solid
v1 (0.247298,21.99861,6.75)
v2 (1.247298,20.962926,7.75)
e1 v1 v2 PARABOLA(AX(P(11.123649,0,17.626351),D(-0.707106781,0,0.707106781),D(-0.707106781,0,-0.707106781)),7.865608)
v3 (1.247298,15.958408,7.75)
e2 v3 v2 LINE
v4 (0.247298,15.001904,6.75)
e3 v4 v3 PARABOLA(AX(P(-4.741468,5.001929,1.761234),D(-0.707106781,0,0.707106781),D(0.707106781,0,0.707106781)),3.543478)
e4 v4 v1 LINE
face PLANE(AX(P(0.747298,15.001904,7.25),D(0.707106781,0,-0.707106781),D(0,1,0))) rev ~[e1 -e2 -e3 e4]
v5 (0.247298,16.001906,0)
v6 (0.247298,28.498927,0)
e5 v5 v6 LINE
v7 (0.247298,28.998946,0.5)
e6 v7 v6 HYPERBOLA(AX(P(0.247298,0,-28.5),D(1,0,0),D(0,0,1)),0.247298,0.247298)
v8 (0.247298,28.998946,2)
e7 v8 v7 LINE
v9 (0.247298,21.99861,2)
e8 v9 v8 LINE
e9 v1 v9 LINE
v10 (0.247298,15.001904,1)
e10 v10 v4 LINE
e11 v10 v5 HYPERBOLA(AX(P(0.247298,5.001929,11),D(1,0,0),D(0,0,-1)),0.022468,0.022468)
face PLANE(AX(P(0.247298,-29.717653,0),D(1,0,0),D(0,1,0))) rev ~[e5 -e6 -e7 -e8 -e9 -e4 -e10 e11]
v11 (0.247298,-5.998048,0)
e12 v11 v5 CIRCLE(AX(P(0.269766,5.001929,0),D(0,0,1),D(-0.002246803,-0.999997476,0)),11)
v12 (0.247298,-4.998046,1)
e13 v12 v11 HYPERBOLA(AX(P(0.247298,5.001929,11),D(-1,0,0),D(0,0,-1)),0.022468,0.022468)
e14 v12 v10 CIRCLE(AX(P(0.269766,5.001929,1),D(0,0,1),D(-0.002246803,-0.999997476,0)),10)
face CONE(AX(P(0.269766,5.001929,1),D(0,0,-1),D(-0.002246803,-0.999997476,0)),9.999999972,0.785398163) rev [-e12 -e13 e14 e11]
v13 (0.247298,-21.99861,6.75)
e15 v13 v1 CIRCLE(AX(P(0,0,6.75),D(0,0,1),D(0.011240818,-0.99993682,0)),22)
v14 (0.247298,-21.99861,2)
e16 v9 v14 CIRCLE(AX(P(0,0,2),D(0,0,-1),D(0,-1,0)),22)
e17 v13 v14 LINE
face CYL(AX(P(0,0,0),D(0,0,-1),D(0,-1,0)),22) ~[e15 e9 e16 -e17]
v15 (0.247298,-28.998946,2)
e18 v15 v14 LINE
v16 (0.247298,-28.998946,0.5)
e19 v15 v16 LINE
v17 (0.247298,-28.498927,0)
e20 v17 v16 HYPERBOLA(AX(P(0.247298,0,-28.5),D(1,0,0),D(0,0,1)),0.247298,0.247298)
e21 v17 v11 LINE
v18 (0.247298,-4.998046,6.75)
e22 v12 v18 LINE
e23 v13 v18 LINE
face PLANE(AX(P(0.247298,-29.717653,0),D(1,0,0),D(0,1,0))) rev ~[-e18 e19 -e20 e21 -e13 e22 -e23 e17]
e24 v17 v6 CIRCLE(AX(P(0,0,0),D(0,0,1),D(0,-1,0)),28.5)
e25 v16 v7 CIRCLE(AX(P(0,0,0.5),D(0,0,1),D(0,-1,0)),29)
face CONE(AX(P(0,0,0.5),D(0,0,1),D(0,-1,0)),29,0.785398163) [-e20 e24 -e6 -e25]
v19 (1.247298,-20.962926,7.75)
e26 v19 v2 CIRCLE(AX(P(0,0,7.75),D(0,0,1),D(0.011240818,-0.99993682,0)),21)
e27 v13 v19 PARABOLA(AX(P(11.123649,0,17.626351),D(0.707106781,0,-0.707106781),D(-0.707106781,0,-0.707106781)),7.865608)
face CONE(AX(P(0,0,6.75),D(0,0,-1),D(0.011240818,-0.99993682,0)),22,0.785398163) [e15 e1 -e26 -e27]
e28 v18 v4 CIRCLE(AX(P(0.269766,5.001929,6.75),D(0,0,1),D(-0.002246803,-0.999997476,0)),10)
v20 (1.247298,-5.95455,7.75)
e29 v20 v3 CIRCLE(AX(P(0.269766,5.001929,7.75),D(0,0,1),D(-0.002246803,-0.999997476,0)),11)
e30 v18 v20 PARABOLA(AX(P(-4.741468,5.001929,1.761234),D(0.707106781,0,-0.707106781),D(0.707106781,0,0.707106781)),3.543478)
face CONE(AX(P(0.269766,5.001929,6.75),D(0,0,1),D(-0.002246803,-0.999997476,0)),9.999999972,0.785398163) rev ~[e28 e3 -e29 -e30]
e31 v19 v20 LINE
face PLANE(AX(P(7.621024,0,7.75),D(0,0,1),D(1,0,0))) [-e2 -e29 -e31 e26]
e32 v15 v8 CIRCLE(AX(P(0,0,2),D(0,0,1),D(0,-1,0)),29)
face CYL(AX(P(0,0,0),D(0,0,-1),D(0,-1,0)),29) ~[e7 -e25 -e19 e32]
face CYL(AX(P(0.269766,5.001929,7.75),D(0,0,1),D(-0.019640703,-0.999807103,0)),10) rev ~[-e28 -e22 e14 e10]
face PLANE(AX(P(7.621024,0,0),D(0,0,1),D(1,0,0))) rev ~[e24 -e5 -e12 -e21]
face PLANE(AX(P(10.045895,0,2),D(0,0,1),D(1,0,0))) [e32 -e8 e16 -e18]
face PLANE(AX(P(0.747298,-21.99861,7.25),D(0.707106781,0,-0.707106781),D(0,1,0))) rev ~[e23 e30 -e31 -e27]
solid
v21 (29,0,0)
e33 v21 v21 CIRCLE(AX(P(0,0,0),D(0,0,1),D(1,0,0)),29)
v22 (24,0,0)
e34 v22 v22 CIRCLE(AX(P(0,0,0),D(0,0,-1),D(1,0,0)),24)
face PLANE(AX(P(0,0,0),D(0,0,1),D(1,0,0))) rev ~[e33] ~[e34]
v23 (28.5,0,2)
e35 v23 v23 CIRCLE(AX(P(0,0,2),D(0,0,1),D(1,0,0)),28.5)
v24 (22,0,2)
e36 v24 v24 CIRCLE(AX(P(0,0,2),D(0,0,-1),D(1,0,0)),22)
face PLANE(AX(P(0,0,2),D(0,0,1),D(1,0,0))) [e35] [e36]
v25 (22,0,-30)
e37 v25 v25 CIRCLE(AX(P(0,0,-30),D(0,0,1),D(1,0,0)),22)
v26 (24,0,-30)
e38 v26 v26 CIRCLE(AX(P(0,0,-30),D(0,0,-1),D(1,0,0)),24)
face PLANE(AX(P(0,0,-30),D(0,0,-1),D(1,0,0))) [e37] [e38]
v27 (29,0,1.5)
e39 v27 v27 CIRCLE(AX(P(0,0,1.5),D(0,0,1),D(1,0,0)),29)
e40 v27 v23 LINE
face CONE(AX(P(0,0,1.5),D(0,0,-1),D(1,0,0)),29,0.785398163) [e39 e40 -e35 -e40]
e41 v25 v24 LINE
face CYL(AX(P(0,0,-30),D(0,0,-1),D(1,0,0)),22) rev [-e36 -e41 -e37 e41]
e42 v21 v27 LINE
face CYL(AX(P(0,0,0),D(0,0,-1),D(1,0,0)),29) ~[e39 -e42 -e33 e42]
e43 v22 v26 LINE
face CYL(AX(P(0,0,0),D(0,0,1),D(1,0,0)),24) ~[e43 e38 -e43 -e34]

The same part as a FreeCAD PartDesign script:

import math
import FreeCAD as App
import Part
import Sketcher

V = App.Vector


def edges_at(feature, points):
    """Names of the edges that pass closest to the given points."""
    edges = feature.Shape.Edges
    near = lambda p: min(range(len(edges)), key=lambda i: edges[i].distToShape(Part.Vertex(*p))[0])
    return sorted({f"Edge{near(p) + 1}" for p in points})

doc = App.newDocument("Part")
body = doc.addObject("PartDesign::Body", "Body")

sketch1 = doc.addObject("Sketcher::SketchObject", "Sketch")
body.addObject(sketch1)
sketch1.AttachmentSupport = (doc.XY_Plane, [""])
sketch1.MapMode = "FlatFace"
sketch1.addGeometry(Part.LineSegment(V(-0.002702, 29.784363, 0), V(-0.002702, -29.717653, 0)), False)
sketch1.addGeometry(Part.LineSegment(V(-0.002702, -29.717653, 0), V(0.247298, -29.717653, 0)), False)
sketch1.addGeometry(Part.LineSegment(V(0.247298, -29.717653, 0), V(0.247298, 29.784363, 0)), False)
sketch1.addGeometry(Part.LineSegment(V(0.247298, 29.784363, 0), V(-0.002702, 29.784363, 0)), False)
sketch1.addConstraint(Sketcher.Constraint("Coincident", 0, 2, 1, 1))
sketch1.addConstraint(Sketcher.Constraint("Coincident", 1, 2, 2, 1))
sketch1.addConstraint(Sketcher.Constraint("Coincident", 2, 2, 3, 1))
sketch1.addConstraint(Sketcher.Constraint("Coincident", 3, 2, 0, 1))
sketch1.addConstraint(Sketcher.Constraint("Vertical", 0))
sketch1.addConstraint(Sketcher.Constraint("Horizontal", 1))
sketch1.addConstraint(Sketcher.Constraint("Vertical", 2))
sketch1.addConstraint(Sketcher.Constraint("Horizontal", 3))
sketch1.addConstraint(Sketcher.Constraint("DistanceX", 1, 1, 1, 2, 0.25))
sketch1.addConstraint(Sketcher.Constraint("DistanceX", 0, 2, -1, 1, 0.002702))
sketch1.addConstraint(Sketcher.Constraint("DistanceY", 0, 2, 0, 1, 59.502016))
sketch1.addConstraint(Sketcher.Constraint("DistanceY", 0, 2, -1, 1, 29.717653))
pad1 = doc.addObject("PartDesign::Pad", "Pad")
body.addObject(pad1)
pad1.Profile = sketch1
pad1.Length = 21
pad1.Midplane = True
body2 = doc.addObject("PartDesign::Body", "Body001")

sketch2 = doc.addObject("Sketcher::SketchObject", "Sketch001")
body2.addObject(sketch2)
sketch2.AttachmentSupport = (doc.getObject("XY_Plane001"), [""])
sketch2.MapMode = "FlatFace"
sketch2.addGeometry(Part.ArcOfCircle(Part.Circle(V(0, 0, 0), V(0, 0, 1), 29), math.radians(-90), math.radians(90)), False)
sketch2.addGeometry(Part.LineSegment(V(0, 29, 0), V(0, -29, 0)), False)
sketch2.addConstraint(Sketcher.Constraint("Coincident", 0, 1, 1, 2))
sketch2.addConstraint(Sketcher.Constraint("Coincident", 1, 1, 0, 2))
sketch2.addConstraint(Sketcher.Constraint("Vertical", 1))
sketch2.addConstraint(Sketcher.Constraint("Coincident", 0, 3, -1, 1))
sketch2.addConstraint(Sketcher.Constraint("PointOnObject", 0, 1, -2))
sketch2.addConstraint(Sketcher.Constraint("Radius", 0, 29.0))
pad2 = doc.addObject("PartDesign::Pad", "Pad001")
body2.addObject(pad2)
pad2.Profile = sketch2
pad2.Length = 2

sketch3 = doc.addObject("Sketcher::SketchObject", "Sketch002")
body2.addObject(sketch3)
sketch3.AttachmentSupport = (doc.getObject("XY_Plane001"), [""])
sketch3.MapMode = "FlatFace"
sketch3.addGeometry(Part.ArcOfCircle(Part.Circle(V(0, 0, 0), V(0, 0, 1), 22), math.radians(-90), math.radians(90)), False)
sketch3.addGeometry(Part.LineSegment(V(0, 22, 0), V(0, -22, 0)), False)
sketch3.addConstraint(Sketcher.Constraint("Coincident", 0, 1, 1, 2))
sketch3.addConstraint(Sketcher.Constraint("Coincident", 1, 1, 0, 2))
sketch3.addConstraint(Sketcher.Constraint("Vertical", 1))
sketch3.addConstraint(Sketcher.Constraint("Coincident", 0, 3, -1, 1))
sketch3.addConstraint(Sketcher.Constraint("PointOnObject", 0, 1, -2))
sketch3.addConstraint(Sketcher.Constraint("Radius", 0, 22.0))
pad3 = doc.addObject("PartDesign::Pad", "Pad002")
body2.addObject(pad3)
pad3.Profile = sketch3
pad3.Length = 7.75

sketch4 = doc.addObject("Sketcher::SketchObject", "Sketch003")
body2.addObject(sketch4)
sketch4.AttachmentSupport = (doc.getObject("XY_Plane001"), [""])
sketch4.MapMode = "FlatFace"
sketch4.AttachmentOffset = App.Placement(V(0, 0, 7.75), App.Rotation())
sketch4.addGeometry(Part.LineSegment(V(0.073359, 15, 0), V(0.073359, -4.996142, 0)), False)
sketch4.addGeometry(Part.ArcOfCircle(Part.Circle(V(0.269766, 5.001929, 0), V(0, 0, 1), 10), math.radians(-91.125402), math.radians(91.125402)), False)
sketch4.addConstraint(Sketcher.Constraint("Coincident", 0, 1, 1, 2))
sketch4.addConstraint(Sketcher.Constraint("Coincident", 1, 1, 0, 2))
sketch4.addConstraint(Sketcher.Constraint("Vertical", 0))
sketch4.addConstraint(Sketcher.Constraint("Radius", 1, 10.0))
sketch4.addConstraint(Sketcher.Constraint("DistanceY", -1, 1, 0, 1, 15.0))
sketch4.addConstraint(Sketcher.Constraint("DistanceY", 0, 2, 0, 1, 19.996142))
sketch4.addConstraint(Sketcher.Constraint("DistanceX", -1, 1, 0, 1, 0.073359))
pocket1 = doc.addObject("PartDesign::Pocket", "Pocket")
body2.addObject(pocket1)
pocket1.Profile = sketch4
pocket1.Type = "ThroughAll"
doc.recompute()

chamfer = doc.addObject("PartDesign::Chamfer", "Chamfer")
body2.addObject(chamfer)
chamfer.Base = (pocket1, edges_at(pocket1, [(29, 0, 0)]))
chamfer.Size = 0.5
doc.recompute()

boolean = doc.addObject("PartDesign::Boolean", "Boolean")
body2.addObject(boolean)
boolean.Type = "Cut"
boolean.addObjects([body])
doc.recompute()

chamfer2 = doc.addObject("PartDesign::Chamfer", "Chamfer001")
body2.addObject(chamfer2)
chamfer2.Base = (boolean, edges_at(boolean, [
    (10.27, 5.002, 7.75),
    (0.247, -13.498, 7.75),
    (0.247, 18.5, 7.75),
    (22, 0, 7.75),
]))
chamfer2.Size = 1
doc.recompute()

chamfer3 = doc.addObject("PartDesign::Chamfer", "Chamfer002")
body2.addObject(chamfer3)
chamfer3.Base = (chamfer2, edges_at(chamfer2, [(10.27, 5.002, 0)]))
chamfer3.Size = 1
body3 = doc.addObject("PartDesign::Body", "Body002")

sketch5 = doc.addObject("Sketcher::SketchObject", "Sketch004")
body3.addObject(sketch5)
sketch5.AttachmentSupport = (doc.getObject("XY_Plane002"), [""])
sketch5.MapMode = "FlatFace"
sketch5.addGeometry(Part.Circle(V(0, 0, 0), V(0, 0, 1), 29), False)
sketch5.addConstraint(Sketcher.Constraint("Coincident", 0, 3, -1, 1))
sketch5.addConstraint(Sketcher.Constraint("Diameter", 0, 58.0))
pad4 = doc.addObject("PartDesign::Pad", "Pad003")
body3.addObject(pad4)
pad4.Profile = sketch5
pad4.Length = 2
doc.recompute()

chamfer4 = doc.addObject("PartDesign::Chamfer", "Chamfer003")
body3.addObject(chamfer4)
chamfer4.Base = (pad4, edges_at(pad4, [(-29, 0, 2)]))
chamfer4.Size = 0.5

sketch6 = doc.addObject("Sketcher::SketchObject", "Sketch005")
body3.addObject(sketch6)
sketch6.AttachmentSupport = (doc.getObject("XY_Plane002"), [""])
sketch6.MapMode = "FlatFace"
sketch6.addGeometry(Part.Circle(V(0, 0, 0), V(0, 0, 1), 24), False)
sketch6.addConstraint(Sketcher.Constraint("Coincident", 0, 3, -1, 1))
sketch6.addConstraint(Sketcher.Constraint("Diameter", 0, 48.0))
pad5 = doc.addObject("PartDesign::Pad", "Pad004")
body3.addObject(pad5)
pad5.Profile = sketch6
pad5.Length = 30
pad5.Reversed = True

sketch7 = doc.addObject("Sketcher::SketchObject", "Sketch006")
body3.addObject(sketch7)
sketch7.AttachmentSupport = (doc.getObject("XY_Plane002"), [""])
sketch7.MapMode = "FlatFace"
sketch7.AttachmentOffset = App.Placement(V(0, 0, -30), App.Rotation())
sketch7.addGeometry(Part.Circle(V(0, 0, 0), V(0, 0, 1), 22), False)
sketch7.addConstraint(Sketcher.Constraint("Coincident", 0, 3, -1, 1))
sketch7.addConstraint(Sketcher.Constraint("Diameter", 0, 44.0))
pocket2 = doc.addObject("PartDesign::Pocket", "Pocket001")
body3.addObject(pocket2)
pocket2.Profile = sketch7
pocket2.Type = "ThroughAll"
pocket2.Reversed = True

doc.recompute()
